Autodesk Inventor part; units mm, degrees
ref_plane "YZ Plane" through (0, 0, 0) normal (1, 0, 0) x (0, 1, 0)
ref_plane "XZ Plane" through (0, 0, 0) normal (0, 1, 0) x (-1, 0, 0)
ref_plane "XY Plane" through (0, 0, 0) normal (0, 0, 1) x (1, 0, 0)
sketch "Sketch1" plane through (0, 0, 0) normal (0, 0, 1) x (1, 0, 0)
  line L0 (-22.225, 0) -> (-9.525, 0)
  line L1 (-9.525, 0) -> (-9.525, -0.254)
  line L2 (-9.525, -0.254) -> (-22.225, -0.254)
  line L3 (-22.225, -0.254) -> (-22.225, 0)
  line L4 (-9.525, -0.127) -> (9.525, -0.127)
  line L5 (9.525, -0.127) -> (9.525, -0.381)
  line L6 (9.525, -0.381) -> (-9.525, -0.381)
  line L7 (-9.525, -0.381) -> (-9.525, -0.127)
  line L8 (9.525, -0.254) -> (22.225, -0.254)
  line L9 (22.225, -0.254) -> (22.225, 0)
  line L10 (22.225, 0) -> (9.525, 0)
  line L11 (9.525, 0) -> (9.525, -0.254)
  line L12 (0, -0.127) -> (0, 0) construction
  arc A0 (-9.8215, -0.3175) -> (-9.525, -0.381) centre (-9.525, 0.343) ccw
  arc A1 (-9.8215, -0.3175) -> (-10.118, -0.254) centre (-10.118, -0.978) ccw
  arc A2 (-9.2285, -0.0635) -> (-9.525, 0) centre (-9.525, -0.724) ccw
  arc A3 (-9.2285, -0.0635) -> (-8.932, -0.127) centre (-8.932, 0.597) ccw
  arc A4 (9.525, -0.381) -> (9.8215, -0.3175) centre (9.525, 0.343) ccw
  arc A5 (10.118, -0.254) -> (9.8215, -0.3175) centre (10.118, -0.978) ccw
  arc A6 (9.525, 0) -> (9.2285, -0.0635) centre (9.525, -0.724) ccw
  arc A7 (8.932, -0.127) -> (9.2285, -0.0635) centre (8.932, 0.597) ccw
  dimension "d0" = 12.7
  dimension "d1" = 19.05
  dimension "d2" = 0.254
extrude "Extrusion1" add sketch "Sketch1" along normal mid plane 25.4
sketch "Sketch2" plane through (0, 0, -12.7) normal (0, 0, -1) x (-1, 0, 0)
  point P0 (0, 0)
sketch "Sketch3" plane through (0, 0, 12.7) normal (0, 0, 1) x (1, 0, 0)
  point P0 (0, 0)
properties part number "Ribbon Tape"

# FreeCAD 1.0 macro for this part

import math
import FreeCAD as App
import Part
import Sketcher

V = App.Vector
Q = App.Units.Quantity

doc = App.newDocument("Part")
params = doc.addObject("Spreadsheet::Sheet", "Params")
for row, (alias, value) in enumerate([
    ("sketch1_width", "0.5 in"),
    ("sketch1_width2", "0.75 in"),
    ("sketch1_height", "0.01 in"),
    ("pad1_length", "1 in"),
], start=1):
    params.set(f"A{row}", alias)
    params.set(f"B{row}", "=" + value)
    params.setAlias(f"B{row}", alias)

body = doc.addObject("PartDesign::Body", "Body")

# Sketch on XY plane
sketch1 = body.newObject("Sketcher::SketchObject", "Sketch")
sketch1.AttachmentSupport = (doc.getObject("XY_Plane"), [""])
sketch1.MapMode = "FlatFace"
sketch1.addGeometry(Part.LineSegment(V(-9.53, 0, 0), V(-22.23, 0, 0)), False)
sketch1.addGeometry(Part.LineSegment(V(-22.23, 0, 0), V(-22.23, -0.25, 0)), False)
sketch1.addGeometry(Part.LineSegment(V(-22.23, -0.25, 0), V(-10.12, -0.25, 0)), False)
sketch1.addGeometry(Part.ArcOfCircle(Part.Circle(V(-10.12, -0.98, 0), V(0, 0, 1), 0.72), math.radians(66), math.radians(90)), False)
sketch1.addGeometry(Part.ArcOfCircle(Part.Circle(V(-9.53, 0.34, 0), V(0, 0, 1), 0.72), math.radians(-114), math.radians(-90)), False)
sketch1.addGeometry(Part.LineSegment(V(-9.53, -0.38, 0), V(9.53, -0.38, 0)), False)
sketch1.addGeometry(Part.ArcOfCircle(Part.Circle(V(9.53, 0.34, 0), V(0, 0, 1), 0.72), math.radians(-90), math.radians(-66)), False)
sketch1.addGeometry(Part.ArcOfCircle(Part.Circle(V(10.12, -0.98, 0), V(0, 0, 1), 0.72), math.radians(90), math.radians(114)), False)
sketch1.addGeometry(Part.LineSegment(V(10.12, -0.25, 0), V(22.23, -0.25, 0)), False)
sketch1.addGeometry(Part.LineSegment(V(22.23, -0.25, 0), V(22.23, 0, 0)), False)
sketch1.addGeometry(Part.LineSegment(V(22.23, 0, 0), V(9.53, 0, 0)), False)
sketch1.addGeometry(Part.ArcOfCircle(Part.Circle(V(9.53, -0.72, 0), V(0, 0, 1), 0.72), math.radians(90), math.radians(114)), False)
sketch1.addGeometry(Part.ArcOfCircle(Part.Circle(V(8.93, 0.6, 0), V(0, 0, 1), 0.72), math.radians(-90), math.radians(-66)), False)
sketch1.addGeometry(Part.LineSegment(V(8.93, -0.13, 0), V(-8.93, -0.13, 0)), False)
sketch1.addGeometry(Part.ArcOfCircle(Part.Circle(V(-8.93, 0.6, 0), V(0, 0, 1), 0.72), math.radians(-114), math.radians(-90)), False)
sketch1.addGeometry(Part.ArcOfCircle(Part.Circle(V(-9.53, -0.72, 0), V(0, 0, 1), 0.72), math.radians(66), math.radians(90)), False)
sketch1.addConstraint(Sketcher.Constraint("Coincident", 0, 2, 1, 1))
sketch1.addConstraint(Sketcher.Constraint("Coincident", 1, 2, 2, 1))
sketch1.addConstraint(Sketcher.Constraint("Tangent", 2, 2, 3, 2))
sketch1.addConstraint(Sketcher.Constraint("Tangent", 3, 1, 4, 1))
sketch1.addConstraint(Sketcher.Constraint("Tangent", 4, 2, 5, 1))
sketch1.addConstraint(Sketcher.Constraint("Tangent", 5, 2, 6, 1))
sketch1.addConstraint(Sketcher.Constraint("Tangent", 6, 2, 7, 2))
sketch1.addConstraint(Sketcher.Constraint("Tangent", 7, 1, 8, 1))
sketch1.addConstraint(Sketcher.Constraint("Coincident", 8, 2, 9, 1))
sketch1.addConstraint(Sketcher.Constraint("Coincident", 9, 2, 10, 1))
sketch1.addConstraint(Sketcher.Constraint("Tangent", 10, 2, 11, 1))
sketch1.addConstraint(Sketcher.Constraint("Tangent", 11, 2, 12, 2))
sketch1.addConstraint(Sketcher.Constraint("Tangent", 12, 1, 13, 1))
sketch1.addConstraint(Sketcher.Constraint("Tangent", 13, 2, 14, 2))
sketch1.addConstraint(Sketcher.Constraint("Tangent", 14, 1, 15, 1))
sketch1.addConstraint(Sketcher.Constraint("Tangent", 15, 2, 0, 1))
sketch1.addConstraint(Sketcher.Constraint("Horizontal", 0))
sketch1.addConstraint(Sketcher.Constraint("Vertical", 1))
sketch1.addConstraint(Sketcher.Constraint("Horizontal", 2))
sketch1.addConstraint(Sketcher.Constraint("Horizontal", 5))
sketch1.addConstraint(Sketcher.Constraint("Horizontal", 8))
sketch1.addConstraint(Sketcher.Constraint("Vertical", 9))
sketch1.addConstraint(Sketcher.Constraint("Horizontal", 10))
sketch1.addConstraint(Sketcher.Constraint("Horizontal", 13))
sketch1.addConstraint(Sketcher.Constraint("Equal", 3, 4))
sketch1.addConstraint(Sketcher.Constraint("Equal", 4, 6))
sketch1.addConstraint(Sketcher.Constraint("Equal", 6, 7))
sketch1.addConstraint(Sketcher.Constraint("Equal", 7, 11))
sketch1.addConstraint(Sketcher.Constraint("Equal", 11, 12))
sketch1.addConstraint(Sketcher.Constraint("Equal", 12, 14))
sketch1.addConstraint(Sketcher.Constraint("Equal", 14, 15))
sketch1.addConstraint(Sketcher.Constraint("Symmetric", 0, 2, 9, 2, -1, 1))
sketch1.addConstraint(Sketcher.Constraint("Symmetric", 3, 3, 7, 3, -2))
sketch1.addConstraint(Sketcher.Constraint("Symmetric", 11, 3, 15, 3, -2))
sketch1.addConstraint(Sketcher.Constraint("Vertical", 6, 3, 11, 3))
sketch1.addConstraint(Sketcher.Constraint("DistanceX", 0, 2, 0, 1, Q("0.5 in")))
sketch1.addConstraint(Sketcher.Constraint("DistanceX", 5, 1, 5, 2, Q("0.75 in")))
sketch1.addConstraint(Sketcher.Constraint("DistanceY", 1, 2, 1, 1, Q("0.01 in")))
sketch1.addConstraint(Sketcher.Constraint("DistanceY", 6, 3, 12, 3, Q("0.01 in")))
sketch1.addConstraint(Sketcher.Constraint("Radius", 3, Q("0.0285 in")))
sketch1.addConstraint(Sketcher.Constraint("DistanceX", 13, 2, 13, 1, Q("0.7033 in")))
sketch1.setExpression("Constraints[35]", "Params.sketch1_width")
sketch1.setExpression("Constraints[36]", "Params.sketch1_width2")
sketch1.setExpression("Constraints[37]", "Params.sketch1_height")
pad1 = body.newObject("PartDesign::Pad", "Pad")
pad1.Profile = sketch1
pad1.setExpression("Length", "Params.pad1_length")
pad1.Midplane = True

doc.recompute()
